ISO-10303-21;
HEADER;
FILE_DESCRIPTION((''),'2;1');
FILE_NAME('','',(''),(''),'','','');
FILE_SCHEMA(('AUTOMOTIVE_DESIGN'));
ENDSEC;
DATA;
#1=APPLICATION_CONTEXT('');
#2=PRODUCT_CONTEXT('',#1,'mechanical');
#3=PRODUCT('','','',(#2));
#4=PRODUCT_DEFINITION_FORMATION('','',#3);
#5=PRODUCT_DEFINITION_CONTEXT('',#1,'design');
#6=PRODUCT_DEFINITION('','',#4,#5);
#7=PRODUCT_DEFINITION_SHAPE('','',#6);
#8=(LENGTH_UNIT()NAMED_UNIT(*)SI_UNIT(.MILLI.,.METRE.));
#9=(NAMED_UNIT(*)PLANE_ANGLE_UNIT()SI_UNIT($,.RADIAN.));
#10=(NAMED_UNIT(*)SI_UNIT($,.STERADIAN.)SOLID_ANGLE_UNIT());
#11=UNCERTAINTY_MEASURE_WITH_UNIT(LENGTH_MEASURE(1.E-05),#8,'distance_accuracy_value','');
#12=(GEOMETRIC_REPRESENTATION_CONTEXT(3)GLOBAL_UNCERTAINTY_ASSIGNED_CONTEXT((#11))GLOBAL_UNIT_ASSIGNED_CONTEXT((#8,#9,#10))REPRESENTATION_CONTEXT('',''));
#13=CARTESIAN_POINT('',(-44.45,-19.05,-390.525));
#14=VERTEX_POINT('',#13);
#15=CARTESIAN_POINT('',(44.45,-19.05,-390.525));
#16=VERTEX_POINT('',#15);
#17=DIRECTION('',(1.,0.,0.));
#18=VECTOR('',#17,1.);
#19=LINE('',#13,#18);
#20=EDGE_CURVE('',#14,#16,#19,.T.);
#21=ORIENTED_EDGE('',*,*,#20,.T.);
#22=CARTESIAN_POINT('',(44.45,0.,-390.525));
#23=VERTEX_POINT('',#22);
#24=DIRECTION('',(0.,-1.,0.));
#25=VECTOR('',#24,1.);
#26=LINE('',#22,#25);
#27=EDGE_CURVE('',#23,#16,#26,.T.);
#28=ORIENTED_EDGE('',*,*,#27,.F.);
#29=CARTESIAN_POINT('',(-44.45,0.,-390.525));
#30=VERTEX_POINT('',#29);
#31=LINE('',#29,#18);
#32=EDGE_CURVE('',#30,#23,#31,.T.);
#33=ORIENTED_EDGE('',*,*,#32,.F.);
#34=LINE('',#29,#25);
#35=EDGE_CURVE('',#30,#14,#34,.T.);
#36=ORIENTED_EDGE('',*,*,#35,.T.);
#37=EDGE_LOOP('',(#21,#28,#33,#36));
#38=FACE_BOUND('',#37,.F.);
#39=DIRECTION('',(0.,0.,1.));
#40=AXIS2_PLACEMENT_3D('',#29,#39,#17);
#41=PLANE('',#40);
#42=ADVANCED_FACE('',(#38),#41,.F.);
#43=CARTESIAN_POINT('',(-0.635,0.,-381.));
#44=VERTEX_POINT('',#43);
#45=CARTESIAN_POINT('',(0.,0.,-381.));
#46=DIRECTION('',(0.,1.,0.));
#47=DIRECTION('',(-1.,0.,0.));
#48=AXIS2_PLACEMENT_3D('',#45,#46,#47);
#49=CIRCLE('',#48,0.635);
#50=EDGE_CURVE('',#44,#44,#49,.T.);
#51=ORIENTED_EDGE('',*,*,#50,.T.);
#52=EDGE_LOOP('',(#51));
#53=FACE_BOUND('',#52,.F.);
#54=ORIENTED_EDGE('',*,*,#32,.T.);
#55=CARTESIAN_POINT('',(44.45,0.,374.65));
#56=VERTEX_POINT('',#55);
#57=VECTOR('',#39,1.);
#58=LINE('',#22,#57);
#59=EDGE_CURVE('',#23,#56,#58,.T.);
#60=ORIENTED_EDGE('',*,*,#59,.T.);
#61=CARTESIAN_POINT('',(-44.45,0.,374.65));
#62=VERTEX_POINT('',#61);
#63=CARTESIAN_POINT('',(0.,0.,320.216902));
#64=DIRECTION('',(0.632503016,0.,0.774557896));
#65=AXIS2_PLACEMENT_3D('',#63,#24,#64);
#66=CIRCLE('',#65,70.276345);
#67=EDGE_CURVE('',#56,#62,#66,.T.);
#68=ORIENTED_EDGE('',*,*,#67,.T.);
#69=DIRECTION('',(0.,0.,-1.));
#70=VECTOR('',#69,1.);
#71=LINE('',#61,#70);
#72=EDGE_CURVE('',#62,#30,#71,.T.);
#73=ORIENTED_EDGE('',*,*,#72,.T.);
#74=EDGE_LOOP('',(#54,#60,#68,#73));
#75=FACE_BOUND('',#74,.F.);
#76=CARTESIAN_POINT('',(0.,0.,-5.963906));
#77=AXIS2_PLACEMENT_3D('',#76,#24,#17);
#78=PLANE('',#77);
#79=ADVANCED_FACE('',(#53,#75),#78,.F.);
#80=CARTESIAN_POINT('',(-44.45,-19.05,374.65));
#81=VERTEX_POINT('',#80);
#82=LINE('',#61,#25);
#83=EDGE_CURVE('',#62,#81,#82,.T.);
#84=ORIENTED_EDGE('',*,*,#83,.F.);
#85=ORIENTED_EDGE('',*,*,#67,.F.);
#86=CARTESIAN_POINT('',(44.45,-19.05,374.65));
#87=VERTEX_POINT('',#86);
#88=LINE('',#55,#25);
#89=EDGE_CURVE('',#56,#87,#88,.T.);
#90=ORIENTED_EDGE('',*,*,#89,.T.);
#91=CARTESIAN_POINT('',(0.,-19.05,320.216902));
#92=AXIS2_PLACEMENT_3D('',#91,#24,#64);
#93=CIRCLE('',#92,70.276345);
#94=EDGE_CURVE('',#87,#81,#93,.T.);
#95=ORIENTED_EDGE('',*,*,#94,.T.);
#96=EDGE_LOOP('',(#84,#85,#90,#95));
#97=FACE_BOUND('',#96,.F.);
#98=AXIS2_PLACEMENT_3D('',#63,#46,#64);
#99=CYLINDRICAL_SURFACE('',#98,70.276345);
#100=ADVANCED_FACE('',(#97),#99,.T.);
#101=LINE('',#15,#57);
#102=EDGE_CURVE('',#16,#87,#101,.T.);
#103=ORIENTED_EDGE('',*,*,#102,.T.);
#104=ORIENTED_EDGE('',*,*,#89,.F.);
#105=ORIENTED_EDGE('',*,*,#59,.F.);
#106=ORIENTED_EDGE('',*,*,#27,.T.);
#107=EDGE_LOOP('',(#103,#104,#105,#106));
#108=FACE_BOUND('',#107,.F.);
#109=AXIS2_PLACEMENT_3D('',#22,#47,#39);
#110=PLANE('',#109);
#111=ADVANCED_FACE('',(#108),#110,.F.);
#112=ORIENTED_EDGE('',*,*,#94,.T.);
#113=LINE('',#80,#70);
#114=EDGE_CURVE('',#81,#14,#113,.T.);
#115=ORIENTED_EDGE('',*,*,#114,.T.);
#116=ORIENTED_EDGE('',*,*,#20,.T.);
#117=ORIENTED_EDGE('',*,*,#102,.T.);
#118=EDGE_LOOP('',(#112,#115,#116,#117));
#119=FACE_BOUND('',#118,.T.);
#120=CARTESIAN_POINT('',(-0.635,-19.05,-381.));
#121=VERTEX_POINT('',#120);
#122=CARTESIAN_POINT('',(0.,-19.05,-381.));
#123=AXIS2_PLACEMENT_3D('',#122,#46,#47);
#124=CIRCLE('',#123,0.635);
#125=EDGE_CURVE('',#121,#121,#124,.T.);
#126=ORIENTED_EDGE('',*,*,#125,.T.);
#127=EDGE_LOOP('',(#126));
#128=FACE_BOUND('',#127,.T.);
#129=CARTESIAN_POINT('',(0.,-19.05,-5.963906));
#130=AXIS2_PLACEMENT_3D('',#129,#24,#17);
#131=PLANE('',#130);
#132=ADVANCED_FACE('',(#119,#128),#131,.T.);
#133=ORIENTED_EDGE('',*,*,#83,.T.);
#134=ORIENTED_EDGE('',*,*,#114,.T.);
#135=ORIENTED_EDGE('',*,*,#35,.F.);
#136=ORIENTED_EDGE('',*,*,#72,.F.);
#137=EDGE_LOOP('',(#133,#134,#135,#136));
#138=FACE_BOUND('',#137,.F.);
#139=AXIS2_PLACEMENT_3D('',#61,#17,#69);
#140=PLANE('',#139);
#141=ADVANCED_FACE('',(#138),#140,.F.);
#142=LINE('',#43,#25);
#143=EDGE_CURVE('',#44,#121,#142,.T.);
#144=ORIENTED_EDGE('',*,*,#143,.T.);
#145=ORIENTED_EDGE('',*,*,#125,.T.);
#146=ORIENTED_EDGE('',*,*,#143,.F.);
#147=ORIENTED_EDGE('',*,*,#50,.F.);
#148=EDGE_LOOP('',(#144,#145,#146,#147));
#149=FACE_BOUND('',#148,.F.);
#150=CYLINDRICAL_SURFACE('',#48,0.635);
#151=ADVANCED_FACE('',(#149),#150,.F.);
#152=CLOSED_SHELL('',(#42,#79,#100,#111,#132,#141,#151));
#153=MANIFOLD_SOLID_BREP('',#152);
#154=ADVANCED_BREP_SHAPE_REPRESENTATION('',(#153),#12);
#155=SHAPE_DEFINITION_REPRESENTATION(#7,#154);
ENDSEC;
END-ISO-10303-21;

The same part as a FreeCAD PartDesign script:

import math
import FreeCAD as App
import Part
import Sketcher

V = App.Vector
Q = App.Units.Quantity

doc = App.newDocument("Part")
body = doc.addObject("PartDesign::Body", "Body")

sketch1 = body.newObject("Sketcher::SketchObject", "Sketch")
sketch1.AttachmentSupport = (doc.getObject("XZ_Plane"), [""])
sketch1.MapMode = "FlatFace"
sketch1.addGeometry([
    Part.LineSegment(V(-44, 375, 0), V(-44, -391, 0)),
    Part.LineSegment(V(-44, -391, 0), V(44, -391, 0)),
    Part.LineSegment(V(44, -391, 0), V(44, 375, 0)),
    Part.ArcOfCircle(Part.Circle(V(0, 320, 0), V(0, 0, 1), 70), math.radians(51), math.radians(129)),
], False)
sketch1.addConstraint([
    Sketcher.Constraint("Coincident", 0, 2, 1, 1),
    Sketcher.Constraint("Coincident", 1, 2, 2, 1),
    Sketcher.Constraint("Coincident", 2, 2, 3, 1),
    Sketcher.Constraint("Coincident", 3, 2, 0, 1),
    Sketcher.Constraint("Vertical", 0),
    Sketcher.Constraint("Horizontal", 1),
    Sketcher.Constraint("Vertical", 2),
    Sketcher.Constraint("Symmetric", 2, 2, 3, 2, -2),
    Sketcher.Constraint("DistanceX", 1, 1, 1, 2, Q("3.5 in")),
    Sketcher.Constraint("DistanceY", 0, 2, 0, 1, Q("30.125 in")),
    Sketcher.Constraint("DistanceY", -1, 1, 2, 2, Q("14.75 in")),
    Sketcher.Constraint("Radius", 3, 70.276345),
])
pad1 = body.newObject("PartDesign::Pad", "Pad")
pad1.Profile = sketch1
pad1.Length = Q("0.75 in")

sketch2 = body.newObject("Sketcher::SketchObject", "Sketch001")
sketch2.AttachmentSupport = (doc.getObject("XZ_Plane"), [""])
sketch2.MapMode = "FlatFace"
sketch2.addGeometry(Part.Circle(V(0, -381, 0), V(0, 0, 1), 0.6), False)
sketch2.addConstraint([
    Sketcher.Constraint("PointOnObject", 0, 3, -2),
    Sketcher.Constraint("Diameter", 0, Q("0.05 in")),
    Sketcher.Constraint("DistanceY", 0, 3, -1, 1, Q("15 in")),
])
pocket1 = body.newObject("PartDesign::Pocket", "Pocket")
pocket1.Profile = sketch2
pocket1.Type = "ThroughAll"
pocket1.Reversed = True

doc.recompute()
